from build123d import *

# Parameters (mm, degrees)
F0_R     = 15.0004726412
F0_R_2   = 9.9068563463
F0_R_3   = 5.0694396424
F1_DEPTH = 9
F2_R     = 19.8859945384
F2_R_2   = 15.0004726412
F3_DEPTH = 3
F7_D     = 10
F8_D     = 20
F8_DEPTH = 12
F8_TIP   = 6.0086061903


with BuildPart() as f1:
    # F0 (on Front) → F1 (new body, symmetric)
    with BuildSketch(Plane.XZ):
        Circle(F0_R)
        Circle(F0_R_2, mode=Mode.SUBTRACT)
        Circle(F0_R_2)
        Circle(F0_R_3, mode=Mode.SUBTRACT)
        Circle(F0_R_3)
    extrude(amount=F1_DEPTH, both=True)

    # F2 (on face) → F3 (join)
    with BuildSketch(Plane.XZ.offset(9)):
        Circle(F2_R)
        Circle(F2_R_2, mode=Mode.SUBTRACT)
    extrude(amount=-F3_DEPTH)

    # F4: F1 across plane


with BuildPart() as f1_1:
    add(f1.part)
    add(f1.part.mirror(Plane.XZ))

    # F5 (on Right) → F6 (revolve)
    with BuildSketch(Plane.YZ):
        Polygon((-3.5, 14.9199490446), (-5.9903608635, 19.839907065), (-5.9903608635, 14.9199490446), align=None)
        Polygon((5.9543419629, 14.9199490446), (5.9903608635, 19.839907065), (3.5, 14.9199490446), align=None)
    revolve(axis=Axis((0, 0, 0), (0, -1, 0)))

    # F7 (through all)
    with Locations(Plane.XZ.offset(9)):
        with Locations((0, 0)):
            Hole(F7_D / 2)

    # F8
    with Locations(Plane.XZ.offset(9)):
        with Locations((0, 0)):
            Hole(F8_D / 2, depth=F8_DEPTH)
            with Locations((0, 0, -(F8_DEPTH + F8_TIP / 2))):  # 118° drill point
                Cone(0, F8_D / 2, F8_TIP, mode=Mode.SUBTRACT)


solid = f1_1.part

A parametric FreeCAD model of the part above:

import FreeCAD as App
import Part
import Sketcher


def add_polygon(sketch, points):
    """Adds a closed chain of lines whose ends are joined by coincident constraints."""
    first, n = sketch.GeometryCount, len(points)
    for a, b in zip(points, points[1:] + points[:1]):
        sketch.addGeometry(Part.LineSegment(App.Vector(*a, 0), App.Vector(*b, 0)), False)
    for i in range(n):
        sketch.addConstraint(Sketcher.Constraint("Coincident", first + i, 2, first + (i + 1) % n, 1))

doc = App.newDocument("Part")
params = doc.addObject("Spreadsheet::Sheet", "Params")
for row, (alias, value) in enumerate([
    ("pad1_length", "18 mm"),
    ("pad2_length", "3 mm"),
    ("revolution_angle", "360 deg"),
    ("sketch4_diameter", "10 mm"),
    ("hole_diameter", "10 mm"),
    ("sketch5_diameter", "20 mm"),
    ("hole2_diameter", "20 mm"),
    ("hole2_depth", "12 mm"),
], start=1):
    params.set(f"A{row}", alias)
    params.set(f"B{row}", "=" + value)
    params.setAlias(f"B{row}", alias)

body = doc.addObject("PartDesign::Body", "Body")

# Sketch on XZ plane
sketch1 = body.newObject("Sketcher::SketchObject", "Sketch")
sketch1.AttachmentSupport = (doc.getObject("XZ_Plane"), [""])
sketch1.MapMode = "FlatFace"
sketch1.addGeometry(Part.Circle(App.Vector(0, 0, 0), App.Vector(0, 0, 1), 15), False)
sketch1.addConstraint([
    Sketcher.Constraint("Coincident", 0, 3, -1, 1),
    Sketcher.Constraint("Diameter", 0, 30.000945),
])
pad1 = body.newObject("PartDesign::Pad", "Pad")
pad1.Profile = sketch1
pad1.setExpression("Length", "Params.pad1_length")
pad1.Midplane = True

# Sketch on XZ plane
sketch2 = body.newObject("Sketcher::SketchObject", "Sketch001")
sketch2.AttachmentSupport = (doc.getObject("XZ_Plane"), [""])
sketch2.MapMode = "FlatFace"
sketch2.AttachmentOffset = App.Placement(App.Vector(0, 0, 9), App.Rotation())
sketch2.addGeometry([
    Part.Circle(App.Vector(0, 0, 0), App.Vector(0, 0, 1), 20),
    Part.Circle(App.Vector(0, 0, 0), App.Vector(0, 0, 1), 15),
], False)
sketch2.addConstraint([
    Sketcher.Constraint("Coincident", 0, 3, -1, 1),
    Sketcher.Constraint("Coincident", 1, 3, -1, 1),
    Sketcher.Constraint("Diameter", 0, 39.771989),
    Sketcher.Constraint("Diameter", 1, 30.000945),
])
pad2 = body.newObject("PartDesign::Pad", "Pad001")
pad2.Profile = sketch2
pad2.setExpression("Length", "Params.pad2_length")
pad2.Reversed = True
body2 = doc.addObject("PartDesign::Body", "Body001")
doc.recompute()

body2.BaseFeature = body
doc.recompute()

mirroring = doc.addObject("Part::Mirroring", "Mirroring")
mirroring.Source = body
mirroring.Base = App.Vector(0, 0, 0)
mirroring.Normal = App.Vector(0, -1, 0)
body3 = doc.addObject("PartDesign::Body", "Body002")
body3.BaseFeature = mirroring
boolean = body2.newObject("PartDesign::Boolean", "Boolean")
boolean.Type = "Fuse"
boolean.addObjects([body3])
doc.recompute()

# Sketch on YZ plane
sketch3 = body2.newObject("Sketcher::SketchObject", "Sketch002")
sketch3.AttachmentSupport = (doc.getObject("YZ_Plane001"), [""])
sketch3.MapMode = "FlatFace"
add_polygon(sketch3, [(-3.5, 14.9), (-6, 19.8), (-6, 14.9)])  # lines 0-2
add_polygon(sketch3, [(6, 14.9), (6, 19.8), (3.5, 14.9)])  # lines 3-5
sketch3.addConstraint([
    Sketcher.Constraint("Vertical", 1),
    Sketcher.Constraint("Horizontal", 2),
    Sketcher.Constraint("Horizontal", 5),
    Sketcher.Constraint("Symmetric", 0, 2, 3, 2, -2),
    Sketcher.Constraint("Symmetric", 2, 2, 4, 2, -2),
    Sketcher.Constraint("DistanceX", 2, 2, 4, 2, 7.0),
    Sketcher.Constraint("DistanceX", 2, 1, 2, 2, 2.490361),
    Sketcher.Constraint("DistanceX", 5, 1, 5, 2, 2.454342),
    Sketcher.Constraint("DistanceY", 1, 2, 1, 1, 4.919958),
    Sketcher.Constraint("DistanceY", -1, 1, 1, 2, 14.919949),
])
revolution = body2.newObject("PartDesign::Revolution", "Revolution")
revolution.Profile = sketch3
revolution.ReferenceAxis = (sketch3, ["H_Axis"])
revolution.setExpression("Angle", "Params.revolution_angle")

# Sketch on XZ plane
sketch4 = body2.newObject("Sketcher::SketchObject", "Sketch003")
sketch4.AttachmentSupport = (doc.getObject("XZ_Plane001"), [""])
sketch4.MapMode = "FlatFace"
sketch4.AttachmentOffset = App.Placement(App.Vector(0, 0, 9), App.Rotation())
sketch4.addGeometry(Part.Circle(App.Vector(0, 0, 0), App.Vector(0, 0, 1), 5), False)
sketch4.addConstraint([
    Sketcher.Constraint("Coincident", 0, 3, -1, 1),
    Sketcher.Constraint("Diameter", 0, 10.0),
])
sketch4.setExpression("Constraints[1]", "Params.sketch4_diameter")
doc.recompute()
hole = body2.newObject("PartDesign::Hole", "Hole")
hole.Profile = sketch4
hole.ThreadType = "None"
hole.setExpression("Diameter", "Params.hole_diameter")
hole.DepthType = "ThroughAll"

# Sketch on XZ plane
sketch5 = body2.newObject("Sketcher::SketchObject", "Sketch004")
sketch5.AttachmentSupport = (doc.getObject("XZ_Plane001"), [""])
sketch5.MapMode = "FlatFace"
sketch5.AttachmentOffset = App.Placement(App.Vector(0, 0, 9), App.Rotation())
sketch5.addGeometry(Part.Circle(App.Vector(0, 0, 0), App.Vector(0, 0, 1), 10), False)
sketch5.addConstraint([
    Sketcher.Constraint("Coincident", 0, 3, -1, 1),
    Sketcher.Constraint("Diameter", 0, 20.0),
])
sketch5.setExpression("Constraints[1]", "Params.sketch5_diameter")
doc.recompute()
hole2 = body2.newObject("PartDesign::Hole", "Hole001")
hole2.Profile = sketch5
hole2.ThreadType = "None"
hole2.setExpression("Diameter", "Params.hole2_diameter")
hole2.DepthType = "Dimension"
hole2.setExpression("Depth", "Params.hole2_depth")
hole2.DrillPoint = "Angled"
hole2.DrillPointAngle = 118
mirroring.Visibility = False

doc.recompute()
